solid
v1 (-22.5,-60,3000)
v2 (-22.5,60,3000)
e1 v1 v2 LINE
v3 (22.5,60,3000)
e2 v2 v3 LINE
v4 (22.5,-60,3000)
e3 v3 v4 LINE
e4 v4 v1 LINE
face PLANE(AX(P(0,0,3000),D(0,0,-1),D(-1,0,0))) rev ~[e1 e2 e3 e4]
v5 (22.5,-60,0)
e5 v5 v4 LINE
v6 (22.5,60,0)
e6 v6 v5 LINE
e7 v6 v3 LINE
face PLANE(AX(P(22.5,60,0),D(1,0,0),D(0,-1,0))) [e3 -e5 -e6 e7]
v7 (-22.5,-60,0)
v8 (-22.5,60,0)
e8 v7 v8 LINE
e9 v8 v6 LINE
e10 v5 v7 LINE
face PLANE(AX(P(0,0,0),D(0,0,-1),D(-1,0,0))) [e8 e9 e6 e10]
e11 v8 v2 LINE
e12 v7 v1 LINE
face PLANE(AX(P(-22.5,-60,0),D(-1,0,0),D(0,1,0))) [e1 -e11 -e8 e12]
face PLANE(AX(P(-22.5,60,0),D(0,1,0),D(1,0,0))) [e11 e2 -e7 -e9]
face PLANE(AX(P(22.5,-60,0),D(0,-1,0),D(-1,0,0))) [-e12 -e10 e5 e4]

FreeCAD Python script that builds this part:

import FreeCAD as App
import Part
import Sketcher
from FreeCAD import Vector


def add_polygon(sketch, points):
    """Adds a closed chain of lines whose ends are joined by coincident constraints."""
    first, n = sketch.GeometryCount, len(points)
    for a, b in zip(points, points[1:] + points[:1]):
        sketch.addGeometry(Part.LineSegment(App.Vector(*a, 0), App.Vector(*b, 0)), False)
    for i in range(n):
        sketch.addConstraint(Sketcher.Constraint("Coincident", first + i, 2, first + (i + 1) % n, 1))

doc = App.newDocument("Part")
body = doc.addObject("PartDesign::Body", "Body")

# Sketch on XY plane
sketch1 = body.newObject("Sketcher::SketchObject", "Sketch")
sketch1.AttachmentSupport = (doc.getObject("XY_Plane"), [""])
sketch1.MapMode = "FlatFace"
add_polygon(sketch1, [(22, 60), (22, -60), (-22, -60), (-22, 60)])  # lines 0-3
sketch1.addConstraint([
    Sketcher.Constraint("Vertical", 0),
    Sketcher.Constraint("Horizontal", 1),
    Sketcher.Constraint("Vertical", 2),
    Sketcher.Constraint("Horizontal", 3),
    Sketcher.Constraint("Symmetric", 0, 2, 2, 2, -1, 1),
    Sketcher.Constraint("DistanceX", 1, 2, 1, 1, 45.0),
    Sketcher.Constraint("DistanceY", 0, 2, 0, 1, 120.0),
])
pad1 = body.newObject("PartDesign::Pad", "Pad")
pad1.Profile = sketch1
pad1.Length = 3000

doc.recompute()
